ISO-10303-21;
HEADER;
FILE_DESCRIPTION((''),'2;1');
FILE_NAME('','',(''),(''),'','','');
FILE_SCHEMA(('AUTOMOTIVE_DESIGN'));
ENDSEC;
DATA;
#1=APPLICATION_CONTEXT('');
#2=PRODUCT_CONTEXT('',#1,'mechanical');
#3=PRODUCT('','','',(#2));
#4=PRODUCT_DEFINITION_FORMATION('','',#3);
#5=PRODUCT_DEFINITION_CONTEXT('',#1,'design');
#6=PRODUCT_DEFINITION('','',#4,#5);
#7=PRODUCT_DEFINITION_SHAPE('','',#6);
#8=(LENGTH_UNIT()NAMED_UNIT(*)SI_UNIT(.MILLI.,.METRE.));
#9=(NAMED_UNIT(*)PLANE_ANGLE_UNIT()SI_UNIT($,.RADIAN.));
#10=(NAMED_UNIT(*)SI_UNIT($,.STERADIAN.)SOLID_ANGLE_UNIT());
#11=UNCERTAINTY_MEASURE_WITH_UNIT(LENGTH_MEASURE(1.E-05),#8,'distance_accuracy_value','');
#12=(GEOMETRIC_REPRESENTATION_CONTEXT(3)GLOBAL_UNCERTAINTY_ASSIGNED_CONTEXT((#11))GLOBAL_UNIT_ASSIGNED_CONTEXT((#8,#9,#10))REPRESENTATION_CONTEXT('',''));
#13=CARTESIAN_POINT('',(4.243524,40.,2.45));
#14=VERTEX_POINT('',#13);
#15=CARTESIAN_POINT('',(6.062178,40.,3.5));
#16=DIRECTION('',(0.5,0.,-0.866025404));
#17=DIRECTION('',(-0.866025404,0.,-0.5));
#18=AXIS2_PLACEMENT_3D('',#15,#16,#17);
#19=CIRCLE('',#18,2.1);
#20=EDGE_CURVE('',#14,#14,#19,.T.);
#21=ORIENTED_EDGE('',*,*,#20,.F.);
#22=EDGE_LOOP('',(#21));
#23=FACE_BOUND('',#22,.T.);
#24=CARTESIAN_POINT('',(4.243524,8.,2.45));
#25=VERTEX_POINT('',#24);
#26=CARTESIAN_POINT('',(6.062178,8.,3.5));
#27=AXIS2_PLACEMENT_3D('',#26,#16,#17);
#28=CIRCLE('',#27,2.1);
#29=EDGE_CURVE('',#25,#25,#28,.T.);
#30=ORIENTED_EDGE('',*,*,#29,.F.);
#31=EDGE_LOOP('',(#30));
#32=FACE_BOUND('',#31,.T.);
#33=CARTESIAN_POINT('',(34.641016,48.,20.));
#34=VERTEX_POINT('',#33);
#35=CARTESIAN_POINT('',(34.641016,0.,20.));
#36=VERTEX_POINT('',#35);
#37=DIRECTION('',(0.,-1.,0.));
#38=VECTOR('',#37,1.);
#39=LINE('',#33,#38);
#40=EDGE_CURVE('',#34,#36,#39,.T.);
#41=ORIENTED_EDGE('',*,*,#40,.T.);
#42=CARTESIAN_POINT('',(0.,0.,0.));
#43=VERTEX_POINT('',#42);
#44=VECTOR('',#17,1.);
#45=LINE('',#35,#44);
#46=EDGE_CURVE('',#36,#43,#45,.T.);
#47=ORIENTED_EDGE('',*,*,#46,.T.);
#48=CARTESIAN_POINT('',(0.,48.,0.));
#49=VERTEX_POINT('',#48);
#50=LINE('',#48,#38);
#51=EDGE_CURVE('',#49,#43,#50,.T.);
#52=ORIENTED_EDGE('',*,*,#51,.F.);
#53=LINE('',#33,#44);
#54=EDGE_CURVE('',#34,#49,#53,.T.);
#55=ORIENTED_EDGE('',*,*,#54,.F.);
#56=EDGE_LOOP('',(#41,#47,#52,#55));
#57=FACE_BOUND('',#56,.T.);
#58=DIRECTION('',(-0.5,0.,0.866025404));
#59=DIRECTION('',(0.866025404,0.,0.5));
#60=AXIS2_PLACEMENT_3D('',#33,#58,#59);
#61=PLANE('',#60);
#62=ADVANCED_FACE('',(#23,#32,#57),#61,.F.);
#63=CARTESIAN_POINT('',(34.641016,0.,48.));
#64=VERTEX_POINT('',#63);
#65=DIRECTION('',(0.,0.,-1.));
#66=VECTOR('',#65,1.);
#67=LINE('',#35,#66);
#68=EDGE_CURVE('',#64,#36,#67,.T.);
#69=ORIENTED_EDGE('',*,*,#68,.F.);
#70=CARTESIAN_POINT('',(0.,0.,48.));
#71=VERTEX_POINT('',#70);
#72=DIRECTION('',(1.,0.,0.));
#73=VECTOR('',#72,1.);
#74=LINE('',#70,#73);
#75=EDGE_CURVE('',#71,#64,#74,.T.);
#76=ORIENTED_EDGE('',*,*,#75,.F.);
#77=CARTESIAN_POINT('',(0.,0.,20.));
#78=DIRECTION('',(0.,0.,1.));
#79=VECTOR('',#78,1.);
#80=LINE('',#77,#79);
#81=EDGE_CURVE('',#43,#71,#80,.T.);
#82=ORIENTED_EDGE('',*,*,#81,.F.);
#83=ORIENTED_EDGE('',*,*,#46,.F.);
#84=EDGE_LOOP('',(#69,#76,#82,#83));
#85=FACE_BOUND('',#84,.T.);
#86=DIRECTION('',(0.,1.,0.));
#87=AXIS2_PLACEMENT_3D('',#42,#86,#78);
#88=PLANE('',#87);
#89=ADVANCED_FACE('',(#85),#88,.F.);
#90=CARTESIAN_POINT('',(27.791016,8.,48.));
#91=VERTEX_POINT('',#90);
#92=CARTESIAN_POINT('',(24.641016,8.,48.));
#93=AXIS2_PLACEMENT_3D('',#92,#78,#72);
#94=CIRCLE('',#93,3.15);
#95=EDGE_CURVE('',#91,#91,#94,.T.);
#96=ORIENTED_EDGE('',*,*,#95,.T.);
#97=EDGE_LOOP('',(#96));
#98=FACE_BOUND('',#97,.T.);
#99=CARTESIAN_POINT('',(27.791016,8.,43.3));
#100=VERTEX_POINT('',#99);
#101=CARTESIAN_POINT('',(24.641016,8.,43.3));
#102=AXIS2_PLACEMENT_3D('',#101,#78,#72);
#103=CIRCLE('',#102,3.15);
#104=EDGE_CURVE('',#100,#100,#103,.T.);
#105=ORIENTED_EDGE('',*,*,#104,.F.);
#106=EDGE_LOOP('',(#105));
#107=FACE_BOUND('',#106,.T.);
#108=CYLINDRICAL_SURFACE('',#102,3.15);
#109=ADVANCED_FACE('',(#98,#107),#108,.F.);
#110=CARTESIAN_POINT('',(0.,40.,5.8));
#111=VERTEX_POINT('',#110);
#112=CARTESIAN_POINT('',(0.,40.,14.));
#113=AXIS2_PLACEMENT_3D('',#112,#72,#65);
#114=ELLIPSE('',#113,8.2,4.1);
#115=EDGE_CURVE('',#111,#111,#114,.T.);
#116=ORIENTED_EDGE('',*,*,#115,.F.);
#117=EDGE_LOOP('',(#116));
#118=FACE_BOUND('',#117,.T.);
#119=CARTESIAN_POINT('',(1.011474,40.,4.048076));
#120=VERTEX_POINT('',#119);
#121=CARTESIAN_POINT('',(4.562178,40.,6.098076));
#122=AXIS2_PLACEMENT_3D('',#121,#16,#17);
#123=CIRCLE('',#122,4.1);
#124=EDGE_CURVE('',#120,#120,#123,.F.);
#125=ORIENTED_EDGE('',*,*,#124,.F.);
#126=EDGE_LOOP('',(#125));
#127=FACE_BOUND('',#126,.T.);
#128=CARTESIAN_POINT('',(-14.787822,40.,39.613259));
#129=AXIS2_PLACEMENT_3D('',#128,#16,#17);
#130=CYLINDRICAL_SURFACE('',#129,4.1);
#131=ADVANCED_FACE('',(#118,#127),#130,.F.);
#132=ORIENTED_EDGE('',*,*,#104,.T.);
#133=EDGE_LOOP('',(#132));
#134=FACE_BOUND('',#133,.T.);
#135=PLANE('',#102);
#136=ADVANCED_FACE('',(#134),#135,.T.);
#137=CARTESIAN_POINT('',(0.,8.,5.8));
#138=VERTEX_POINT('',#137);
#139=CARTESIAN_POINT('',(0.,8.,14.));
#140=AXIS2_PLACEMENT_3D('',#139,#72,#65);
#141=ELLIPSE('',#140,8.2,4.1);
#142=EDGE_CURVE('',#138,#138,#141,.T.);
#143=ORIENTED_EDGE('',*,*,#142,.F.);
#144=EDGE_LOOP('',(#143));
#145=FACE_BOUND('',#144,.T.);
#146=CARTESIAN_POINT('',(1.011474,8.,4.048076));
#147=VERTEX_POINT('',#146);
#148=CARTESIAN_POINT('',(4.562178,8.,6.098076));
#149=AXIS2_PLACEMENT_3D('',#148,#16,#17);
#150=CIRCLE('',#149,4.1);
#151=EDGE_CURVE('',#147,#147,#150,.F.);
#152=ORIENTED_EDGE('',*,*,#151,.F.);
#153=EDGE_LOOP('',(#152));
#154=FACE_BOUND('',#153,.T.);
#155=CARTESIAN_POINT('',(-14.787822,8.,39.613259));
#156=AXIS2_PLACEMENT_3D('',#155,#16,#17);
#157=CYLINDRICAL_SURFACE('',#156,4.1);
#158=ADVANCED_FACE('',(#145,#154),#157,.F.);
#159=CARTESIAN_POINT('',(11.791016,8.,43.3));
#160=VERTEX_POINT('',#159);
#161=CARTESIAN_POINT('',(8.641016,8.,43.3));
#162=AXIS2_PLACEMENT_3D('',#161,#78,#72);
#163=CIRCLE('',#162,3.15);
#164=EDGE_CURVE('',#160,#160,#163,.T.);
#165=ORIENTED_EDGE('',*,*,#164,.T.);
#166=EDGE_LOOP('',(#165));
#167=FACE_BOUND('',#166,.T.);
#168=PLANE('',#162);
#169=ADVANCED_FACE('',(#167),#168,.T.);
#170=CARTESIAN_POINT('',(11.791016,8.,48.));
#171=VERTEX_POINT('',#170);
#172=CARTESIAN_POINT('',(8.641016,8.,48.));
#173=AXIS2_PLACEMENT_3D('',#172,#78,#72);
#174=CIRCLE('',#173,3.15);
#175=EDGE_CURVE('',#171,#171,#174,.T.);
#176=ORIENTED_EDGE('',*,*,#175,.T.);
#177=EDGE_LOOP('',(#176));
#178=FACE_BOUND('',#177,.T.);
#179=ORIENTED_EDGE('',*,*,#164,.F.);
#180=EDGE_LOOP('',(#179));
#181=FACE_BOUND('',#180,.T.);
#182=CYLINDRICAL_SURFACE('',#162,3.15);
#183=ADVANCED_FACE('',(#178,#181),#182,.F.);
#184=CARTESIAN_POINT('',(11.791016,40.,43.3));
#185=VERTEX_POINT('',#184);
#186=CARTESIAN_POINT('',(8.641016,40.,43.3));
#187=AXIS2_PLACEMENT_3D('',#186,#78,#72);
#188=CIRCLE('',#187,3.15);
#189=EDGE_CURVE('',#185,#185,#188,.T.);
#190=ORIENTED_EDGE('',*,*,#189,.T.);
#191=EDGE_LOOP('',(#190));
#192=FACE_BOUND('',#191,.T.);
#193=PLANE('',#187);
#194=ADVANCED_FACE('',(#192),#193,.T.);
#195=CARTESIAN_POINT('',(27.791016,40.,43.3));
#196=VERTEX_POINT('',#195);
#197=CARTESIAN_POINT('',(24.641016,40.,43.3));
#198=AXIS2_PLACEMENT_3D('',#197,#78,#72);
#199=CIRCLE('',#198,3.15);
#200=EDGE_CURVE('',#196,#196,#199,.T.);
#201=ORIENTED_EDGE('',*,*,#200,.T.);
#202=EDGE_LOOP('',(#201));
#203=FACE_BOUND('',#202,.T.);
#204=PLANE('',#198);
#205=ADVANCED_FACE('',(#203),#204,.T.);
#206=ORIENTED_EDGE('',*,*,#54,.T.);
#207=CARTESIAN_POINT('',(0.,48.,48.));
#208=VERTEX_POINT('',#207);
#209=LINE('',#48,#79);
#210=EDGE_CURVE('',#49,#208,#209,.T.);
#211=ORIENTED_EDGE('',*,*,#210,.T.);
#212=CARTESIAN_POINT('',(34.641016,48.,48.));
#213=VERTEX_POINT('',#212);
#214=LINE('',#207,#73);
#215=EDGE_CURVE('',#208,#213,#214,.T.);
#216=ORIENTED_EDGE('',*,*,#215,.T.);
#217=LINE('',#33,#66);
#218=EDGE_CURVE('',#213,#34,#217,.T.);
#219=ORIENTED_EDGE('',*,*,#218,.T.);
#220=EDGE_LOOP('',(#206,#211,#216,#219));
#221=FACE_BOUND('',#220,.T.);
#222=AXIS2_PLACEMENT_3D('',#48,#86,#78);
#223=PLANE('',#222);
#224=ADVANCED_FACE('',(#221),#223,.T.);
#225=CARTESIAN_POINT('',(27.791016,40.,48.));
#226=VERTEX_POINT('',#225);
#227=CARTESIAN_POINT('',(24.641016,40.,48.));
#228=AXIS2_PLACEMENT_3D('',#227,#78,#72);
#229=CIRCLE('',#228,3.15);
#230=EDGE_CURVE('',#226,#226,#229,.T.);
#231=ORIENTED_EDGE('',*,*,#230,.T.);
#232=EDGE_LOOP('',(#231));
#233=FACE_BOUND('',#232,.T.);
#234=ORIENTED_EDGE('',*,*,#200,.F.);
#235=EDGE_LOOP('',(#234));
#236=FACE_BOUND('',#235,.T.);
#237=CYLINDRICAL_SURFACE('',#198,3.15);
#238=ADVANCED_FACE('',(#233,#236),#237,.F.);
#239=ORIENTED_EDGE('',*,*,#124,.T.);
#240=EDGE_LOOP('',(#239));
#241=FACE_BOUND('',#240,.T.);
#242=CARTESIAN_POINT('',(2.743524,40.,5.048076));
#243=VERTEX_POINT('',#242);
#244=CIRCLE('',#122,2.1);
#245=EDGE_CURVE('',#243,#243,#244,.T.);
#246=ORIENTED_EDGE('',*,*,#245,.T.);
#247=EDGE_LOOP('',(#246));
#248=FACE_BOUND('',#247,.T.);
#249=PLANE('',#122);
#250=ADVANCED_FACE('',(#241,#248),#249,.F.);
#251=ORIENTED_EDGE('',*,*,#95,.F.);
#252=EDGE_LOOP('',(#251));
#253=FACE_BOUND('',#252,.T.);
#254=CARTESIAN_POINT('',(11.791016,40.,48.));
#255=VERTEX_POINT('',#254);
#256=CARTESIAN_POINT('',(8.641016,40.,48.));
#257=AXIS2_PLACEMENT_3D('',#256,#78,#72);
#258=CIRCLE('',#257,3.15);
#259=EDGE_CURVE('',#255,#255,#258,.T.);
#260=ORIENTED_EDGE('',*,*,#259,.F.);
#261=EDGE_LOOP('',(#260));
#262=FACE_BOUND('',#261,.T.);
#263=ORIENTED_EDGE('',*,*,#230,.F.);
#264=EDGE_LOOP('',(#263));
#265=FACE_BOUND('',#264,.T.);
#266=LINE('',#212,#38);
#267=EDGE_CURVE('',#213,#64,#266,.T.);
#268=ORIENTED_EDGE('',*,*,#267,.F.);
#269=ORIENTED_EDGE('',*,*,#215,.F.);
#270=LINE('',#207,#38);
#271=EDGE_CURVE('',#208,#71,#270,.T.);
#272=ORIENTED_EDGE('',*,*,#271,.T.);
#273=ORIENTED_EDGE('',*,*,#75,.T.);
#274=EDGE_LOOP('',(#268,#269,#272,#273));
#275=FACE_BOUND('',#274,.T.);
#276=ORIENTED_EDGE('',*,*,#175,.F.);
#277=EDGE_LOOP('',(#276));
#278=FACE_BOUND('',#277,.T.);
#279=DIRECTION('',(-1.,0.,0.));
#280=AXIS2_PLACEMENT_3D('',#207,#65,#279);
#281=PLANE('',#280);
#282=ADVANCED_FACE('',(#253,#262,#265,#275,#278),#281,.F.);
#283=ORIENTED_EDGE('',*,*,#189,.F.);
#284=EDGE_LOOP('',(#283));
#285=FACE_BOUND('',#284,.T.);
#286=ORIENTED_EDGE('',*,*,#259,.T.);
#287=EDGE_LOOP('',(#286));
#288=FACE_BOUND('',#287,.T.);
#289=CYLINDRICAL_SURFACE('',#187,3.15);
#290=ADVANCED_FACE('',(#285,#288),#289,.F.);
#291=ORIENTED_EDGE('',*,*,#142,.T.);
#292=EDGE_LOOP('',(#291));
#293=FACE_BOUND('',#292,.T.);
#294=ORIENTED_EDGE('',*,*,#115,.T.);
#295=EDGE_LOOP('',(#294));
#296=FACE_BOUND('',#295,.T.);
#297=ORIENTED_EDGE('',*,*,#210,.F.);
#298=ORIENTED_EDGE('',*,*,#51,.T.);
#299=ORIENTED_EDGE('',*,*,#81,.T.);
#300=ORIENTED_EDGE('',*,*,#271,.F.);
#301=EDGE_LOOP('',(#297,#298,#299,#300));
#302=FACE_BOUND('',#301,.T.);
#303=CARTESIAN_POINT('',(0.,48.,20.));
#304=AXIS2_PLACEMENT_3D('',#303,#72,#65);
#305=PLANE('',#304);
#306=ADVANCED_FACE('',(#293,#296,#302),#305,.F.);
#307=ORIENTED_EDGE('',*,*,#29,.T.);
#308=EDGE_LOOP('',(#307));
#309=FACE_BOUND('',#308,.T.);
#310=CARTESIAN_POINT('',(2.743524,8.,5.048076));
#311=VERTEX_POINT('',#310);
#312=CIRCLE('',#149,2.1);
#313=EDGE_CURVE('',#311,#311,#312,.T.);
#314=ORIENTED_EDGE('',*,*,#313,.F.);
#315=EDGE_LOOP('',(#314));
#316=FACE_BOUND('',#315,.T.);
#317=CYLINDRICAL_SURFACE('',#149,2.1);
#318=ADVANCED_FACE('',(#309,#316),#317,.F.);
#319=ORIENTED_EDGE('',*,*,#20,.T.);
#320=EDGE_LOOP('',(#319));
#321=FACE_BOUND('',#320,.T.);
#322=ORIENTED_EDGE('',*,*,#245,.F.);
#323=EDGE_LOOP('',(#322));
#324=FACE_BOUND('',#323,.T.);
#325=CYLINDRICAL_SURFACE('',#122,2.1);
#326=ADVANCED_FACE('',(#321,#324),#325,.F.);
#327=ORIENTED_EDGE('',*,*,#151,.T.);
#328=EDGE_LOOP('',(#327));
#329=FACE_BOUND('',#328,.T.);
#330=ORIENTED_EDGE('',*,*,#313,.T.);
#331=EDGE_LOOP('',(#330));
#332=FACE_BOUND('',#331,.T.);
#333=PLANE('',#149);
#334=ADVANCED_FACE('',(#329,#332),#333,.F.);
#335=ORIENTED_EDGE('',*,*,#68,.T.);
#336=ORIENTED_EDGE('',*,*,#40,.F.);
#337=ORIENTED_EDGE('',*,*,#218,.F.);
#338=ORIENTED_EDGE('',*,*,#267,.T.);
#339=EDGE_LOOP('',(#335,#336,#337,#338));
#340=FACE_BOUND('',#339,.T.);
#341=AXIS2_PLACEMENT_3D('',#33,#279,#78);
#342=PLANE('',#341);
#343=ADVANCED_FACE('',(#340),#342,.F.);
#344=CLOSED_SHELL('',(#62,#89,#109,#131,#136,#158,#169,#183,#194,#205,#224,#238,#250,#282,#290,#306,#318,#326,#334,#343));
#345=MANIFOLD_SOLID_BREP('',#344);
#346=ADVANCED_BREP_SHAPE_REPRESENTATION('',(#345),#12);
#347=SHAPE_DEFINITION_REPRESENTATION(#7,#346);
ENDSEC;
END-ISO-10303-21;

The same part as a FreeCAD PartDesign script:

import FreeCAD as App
import Part
import Sketcher

V = App.Vector
Q = App.Units.Quantity

doc = App.newDocument("Part")
body = doc.addObject("PartDesign::Body", "Body")

# Sketch on XZ plane
sketch1 = body.newObject("Sketcher::SketchObject", "Sketch")
sketch1.AttachmentSupport = (doc.getObject("XZ_Plane"), [""])
sketch1.MapMode = "FlatFace"
sketch1.addGeometry([
    Part.LineSegment(V(0, 0, 0), V(0, 48, 0)),
    Part.LineSegment(V(0, 48, 0), V(34.641016, 48, 0)),
    Part.LineSegment(V(34.641016, 48, 0), V(34.641016, 20, 0)),
    Part.LineSegment(V(34.641016, 20, 0), V(0, 0, 0)),
], False)
sketch1.addConstraint([
    Sketcher.Constraint("Coincident", 0, 2, 1, 1),
    Sketcher.Constraint("Coincident", 1, 2, 2, 1),
    Sketcher.Constraint("Coincident", 2, 2, 3, 1),
    Sketcher.Constraint("Coincident", 3, 2, 0, 1),
    Sketcher.Constraint("Vertical", 0),
    Sketcher.Constraint("Horizontal", 1),
    Sketcher.Constraint("Vertical", 2),
    Sketcher.Constraint("Coincident", 3, 2, -1, 1),
    Sketcher.Constraint("DistanceY", 0, 1, 0, 2, Q("48 mm")),
    Sketcher.Constraint("DistanceY", 2, 2, 2, 1, Q("28 mm")),
    Sketcher.Constraint("Angle", 3, Q("-150 deg")),
])
pad1 = body.newObject("PartDesign::Pad", "Pad")
pad1.Profile = sketch1
pad1.Length = 48
pad1.Reversed = True

# Sketch on an angled plane
sketch2 = body.newObject("Sketcher::SketchObject", "Sketch001")
sketch2.Placement = App.Placement(V(0, 0, 0), App.Rotation(V(-0.866025404, 0, -0.5), V(0, 1, 0), V(0.5, 0, -0.866025404), "ZXY"))
sketch2.addGeometry([
    Part.Circle(V(-7, 40, 0), V(0, 0, 1), 4.1),
    Part.Circle(V(-7, 8, 0), V(0, 0, 1), 4.1),
], False)
sketch2.addConstraint([
    Sketcher.Constraint("Equal", 0, 1),
    Sketcher.Constraint("Vertical", 0, 3, 1, 3),
    Sketcher.Constraint("Diameter", 0, Q("8.2 mm")),
    Sketcher.Constraint("DistanceX", 0, 3, -1, 1, Q("7 mm")),
    Sketcher.Constraint("DistanceY", -1, 1, 0, 3, Q("40 mm")),
    Sketcher.Constraint("DistanceY", -1, 1, 1, 3, Q("8 mm")),
])
pocket1 = body.newObject("PartDesign::Pocket", "Pocket")
pocket1.Profile = sketch2
pocket1.Length = 41.7

# Sketch on XY plane
sketch3 = body.newObject("Sketcher::SketchObject", "Sketch002")
sketch3.AttachmentSupport = (doc.getObject("XY_Plane"), [""])
sketch3.MapMode = "FlatFace"
sketch3.AttachmentOffset = App.Placement(V(0, 0, 48), App.Rotation())
sketch3.addGeometry([
    Part.Circle(V(8.641016, 40, 0), V(0, 0, 1), 3.15),
    Part.Circle(V(24.641016, 40, 0), V(0, 0, 1), 3.15),
    Part.Circle(V(8.641016, 8, 0), V(0, 0, 1), 3.15),
    Part.Circle(V(24.641016, 8, 0), V(0, 0, 1), 3.15),
], False)
sketch3.addConstraint([
    Sketcher.Constraint("Equal", 0, 1),
    Sketcher.Constraint("Equal", 1, 2),
    Sketcher.Constraint("Equal", 2, 3),
    Sketcher.Constraint("Horizontal", 0, 3, 1, 3),
    Sketcher.Constraint("Horizontal", 2, 3, 3, 3),
    Sketcher.Constraint("Vertical", 0, 3, 2, 3),
    Sketcher.Constraint("Vertical", 1, 3, 3, 3),
    Sketcher.Constraint("Diameter", 0, Q("6.3 mm")),
    Sketcher.Constraint("DistanceY", -1, 1, 0, 3, Q("40 mm")),
    Sketcher.Constraint("DistanceY", -1, 1, 2, 3, Q("8 mm")),
    Sketcher.Constraint("DistanceX", 0, 3, 1, 3, Q("16 mm")),
    Sketcher.Constraint("DistanceX", -1, 1, 0, 3, Q("8.641016 mm")),
])
pocket2 = body.newObject("PartDesign::Pocket", "Pocket001")
pocket2.Profile = sketch3
pocket2.Length = 4.7

# Sketch on an angled plane
sketch4 = body.newObject("Sketcher::SketchObject", "Sketch003")
sketch4.Placement = App.Placement(V(0, 0, 0), App.Rotation(V(-0.866025404, 0, -0.5), V(0, 1, 0), V(0.5, 0, -0.866025404), "ZXY"))
sketch4.addGeometry([
    Part.Circle(V(-7, 40, 0), V(0, 0, 1), 4.1),
    Part.Circle(V(-7, 40, 0), V(0, 0, 1), 2.1),
    Part.Circle(V(-7, 8, 0), V(0, 0, 1), 4.1),
    Part.Circle(V(-7, 8, 0), V(0, 0, 1), 2.1),
], False)
sketch4.addConstraint([
    Sketcher.Constraint("Coincident", 1, 3, 0, 3),
    Sketcher.Constraint("Coincident", 3, 3, 2, 3),
    Sketcher.Constraint("Equal", 0, 2),
    Sketcher.Constraint("Equal", 1, 3),
    Sketcher.Constraint("Vertical", 1, 3, 2, 3),
    Sketcher.Constraint("Diameter", 0, Q("8.2 mm")),
    Sketcher.Constraint("Diameter", 1, Q("4.2 mm")),
    Sketcher.Constraint("DistanceX", 0, 3, -1, 1, Q("7 mm")),
    Sketcher.Constraint("DistanceY", -1, 1, 0, 3, Q("40 mm")),
    Sketcher.Constraint("DistanceY", -1, 1, 2, 3, Q("8 mm")),
])
pad2 = body.newObject("PartDesign::Pad", "Pad001")
pad2.Profile = sketch4
pad2.Length = 3
pad2.Reversed = True

doc.recompute()
